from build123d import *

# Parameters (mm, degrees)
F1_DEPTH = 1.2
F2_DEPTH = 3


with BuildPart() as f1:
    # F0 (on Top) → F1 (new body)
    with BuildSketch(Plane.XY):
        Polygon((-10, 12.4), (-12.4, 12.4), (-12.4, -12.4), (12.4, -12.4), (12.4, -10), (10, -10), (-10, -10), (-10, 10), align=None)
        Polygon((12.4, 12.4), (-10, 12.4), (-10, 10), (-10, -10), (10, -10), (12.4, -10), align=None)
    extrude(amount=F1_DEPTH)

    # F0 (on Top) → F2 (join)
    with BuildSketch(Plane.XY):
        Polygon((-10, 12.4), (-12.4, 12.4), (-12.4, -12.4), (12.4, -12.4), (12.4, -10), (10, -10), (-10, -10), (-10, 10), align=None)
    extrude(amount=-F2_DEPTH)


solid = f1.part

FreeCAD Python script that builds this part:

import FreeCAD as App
import Part
import Sketcher

doc = App.newDocument("Part")
body = doc.addObject("PartDesign::Body", "Body")

# Sketch on XY plane
sketch1 = body.newObject("Sketcher::SketchObject", "Sketch")
sketch1.AttachmentSupport = (doc.getObject("XY_Plane"), [""])
sketch1.MapMode = "FlatFace"
sketch1.addGeometry(Part.LineSegment(App.Vector(-12, 12, 0), App.Vector(-12, -12, 0)), False)
sketch1.addGeometry(Part.LineSegment(App.Vector(-12, -12, 0), App.Vector(12, -12, 0)), False)
sketch1.addGeometry(Part.LineSegment(App.Vector(12, -12, 0), App.Vector(12, 12, 0)), False)
sketch1.addGeometry(Part.LineSegment(App.Vector(12, 12, 0), App.Vector(-12, 12, 0)), False)
sketch1.addConstraint(Sketcher.Constraint("Coincident", 0, 2, 1, 1))
sketch1.addConstraint(Sketcher.Constraint("Coincident", 1, 2, 2, 1))
sketch1.addConstraint(Sketcher.Constraint("Coincident", 2, 2, 3, 1))
sketch1.addConstraint(Sketcher.Constraint("Coincident", 3, 2, 0, 1))
sketch1.addConstraint(Sketcher.Constraint("Vertical", 0))
sketch1.addConstraint(Sketcher.Constraint("Horizontal", 1))
sketch1.addConstraint(Sketcher.Constraint("Vertical", 2))
sketch1.addConstraint(Sketcher.Constraint("Horizontal", 3))
sketch1.addConstraint(Sketcher.Constraint("Symmetric", 0, 2, 2, 2, -1, 1))
sketch1.addConstraint(Sketcher.Constraint("Equal", 3, 0))
sketch1.addConstraint(Sketcher.Constraint("DistanceX", 1, 1, 1, 2, 24.8))
pad1 = body.newObject("PartDesign::Pad", "Pad")
pad1.Profile = sketch1
pad1.Length = 1.2

# Sketch on XY plane
sketch2 = body.newObject("Sketcher::SketchObject", "Sketch001")
sketch2.AttachmentSupport = (doc.getObject("XY_Plane"), [""])
sketch2.MapMode = "FlatFace"
sketch2.addGeometry(Part.LineSegment(App.Vector(-10, 12.4, 0), App.Vector(-12.4, 12.4, 0)), False)
sketch2.addGeometry(Part.LineSegment(App.Vector(-12.4, 12.4, 0), App.Vector(-12.4, -12.4, 0)), False)
sketch2.addGeometry(Part.LineSegment(App.Vector(-12.4, -12.4, 0), App.Vector(12.4, -12.4, 0)), False)
sketch2.addGeometry(Part.LineSegment(App.Vector(12.4, -12.4, 0), App.Vector(12.4, -10, 0)), False)
sketch2.addGeometry(Part.LineSegment(App.Vector(12.4, -10, 0), App.Vector(-10, -10, 0)), False)
sketch2.addGeometry(Part.LineSegment(App.Vector(-10, -10, 0), App.Vector(-10, 12.4, 0)), False)
sketch2.addConstraint(Sketcher.Constraint("Coincident", 0, 2, 1, 1))
sketch2.addConstraint(Sketcher.Constraint("Coincident", 1, 2, 2, 1))
sketch2.addConstraint(Sketcher.Constraint("Coincident", 2, 2, 3, 1))
sketch2.addConstraint(Sketcher.Constraint("Coincident", 3, 2, 4, 1))
sketch2.addConstraint(Sketcher.Constraint("Coincident", 4, 2, 5, 1))
sketch2.addConstraint(Sketcher.Constraint("Coincident", 5, 2, 0, 1))
sketch2.addConstraint(Sketcher.Constraint("Horizontal", 0))
sketch2.addConstraint(Sketcher.Constraint("Vertical", 1))
sketch2.addConstraint(Sketcher.Constraint("Horizontal", 2))
sketch2.addConstraint(Sketcher.Constraint("Vertical", 3))
sketch2.addConstraint(Sketcher.Constraint("Horizontal", 4))
sketch2.addConstraint(Sketcher.Constraint("Vertical", 5))
sketch2.addConstraint(Sketcher.Constraint("Symmetric", 0, 2, 2, 2, -1, 1))
sketch2.addConstraint(Sketcher.Constraint("Equal", 2, 1))
sketch2.addConstraint(Sketcher.Constraint("Equal", 0, 3))
sketch2.addConstraint(Sketcher.Constraint("DistanceX", 0, 2, 0, 1, 2.4))
sketch2.addConstraint(Sketcher.Constraint("DistanceX", 2, 1, 2, 2, 24.8))
pad2 = body.newObject("PartDesign::Pad", "Pad001")
pad2.Profile = sketch2
pad2.Length = 3
pad2.Reversed = True

doc.recompute()
